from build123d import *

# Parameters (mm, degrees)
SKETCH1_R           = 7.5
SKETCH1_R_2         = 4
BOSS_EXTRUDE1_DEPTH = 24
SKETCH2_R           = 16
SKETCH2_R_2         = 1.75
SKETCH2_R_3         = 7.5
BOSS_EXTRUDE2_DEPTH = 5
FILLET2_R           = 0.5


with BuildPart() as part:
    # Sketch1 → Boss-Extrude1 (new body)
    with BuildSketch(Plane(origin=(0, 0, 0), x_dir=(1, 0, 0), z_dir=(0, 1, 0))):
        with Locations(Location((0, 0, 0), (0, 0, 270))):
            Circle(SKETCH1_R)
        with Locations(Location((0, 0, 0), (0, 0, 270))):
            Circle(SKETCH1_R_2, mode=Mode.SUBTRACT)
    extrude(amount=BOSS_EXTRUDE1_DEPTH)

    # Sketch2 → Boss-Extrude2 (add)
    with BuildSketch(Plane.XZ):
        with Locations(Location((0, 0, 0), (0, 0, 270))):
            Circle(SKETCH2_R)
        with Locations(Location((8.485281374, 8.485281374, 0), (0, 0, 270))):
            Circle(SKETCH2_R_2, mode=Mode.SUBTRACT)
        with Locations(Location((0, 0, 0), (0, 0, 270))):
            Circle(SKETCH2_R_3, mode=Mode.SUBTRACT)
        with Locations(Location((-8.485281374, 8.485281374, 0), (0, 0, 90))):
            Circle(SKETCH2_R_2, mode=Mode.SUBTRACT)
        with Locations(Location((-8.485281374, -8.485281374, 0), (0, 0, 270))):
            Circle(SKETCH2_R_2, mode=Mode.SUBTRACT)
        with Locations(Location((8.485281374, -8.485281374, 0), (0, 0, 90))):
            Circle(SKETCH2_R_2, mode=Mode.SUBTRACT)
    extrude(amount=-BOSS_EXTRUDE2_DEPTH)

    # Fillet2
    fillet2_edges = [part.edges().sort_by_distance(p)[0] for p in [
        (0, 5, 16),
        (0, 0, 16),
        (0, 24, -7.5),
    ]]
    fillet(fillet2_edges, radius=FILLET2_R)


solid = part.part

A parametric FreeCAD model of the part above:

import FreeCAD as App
import Part
import Sketcher
from FreeCAD import Vector
Q = App.Units.Quantity


def edges_at(feature, points):
    """Names of the edges that pass closest to the given points."""
    edges = feature.Shape.Edges
    near = lambda p: min(range(len(edges)), key=lambda i: edges[i].distToShape(Part.Vertex(*p))[0])
    return sorted({f"Edge{near(p) + 1}" for p in points})

doc = App.newDocument("Part")
params = doc.addObject("Spreadsheet::Sheet", "Params")
for row, (alias, value) in enumerate([
    ("sketch1_diameter", "15 mm"),
    ("sketch1_diameter2", "8 mm"),
    ("pad1_length", "24 mm"),
    ("sketch2_diameter", "32 mm"),
    ("sketch2_diameter2", "15 mm"),
    ("sketch2_diameter3", "3.5 mm"),
    ("pad2_length", "5 mm"),
    ("fillet_radius", "0.5 mm"),
], start=1):
    params.set(f"A{row}", alias)
    params.set(f"B{row}", "=" + value)
    params.setAlias(f"B{row}", alias)

body = doc.addObject("PartDesign::Body", "Body")

# Sketch on XZ plane
sketch1 = doc.addObject("Sketcher::SketchObject", "Sketch")
body.addObject(sketch1)
sketch1.AttachmentSupport = (doc.XZ_Plane, [""])
sketch1.MapMode = "FlatFace"
sketch1.addGeometry([
    Part.Circle(Vector(0, 0, 0), Vector(0, 0, 1), 7.5),
    Part.Circle(Vector(0, 0, 0), Vector(0, 0, 1), 4),
], False)
sketch1.addConstraint([
    Sketcher.Constraint("Coincident", 0, 3, -1, 1),
    Sketcher.Constraint("Coincident", 1, 3, -1, 1),
    Sketcher.Constraint("Diameter", 0, Q("15 mm")),
    Sketcher.Constraint("Diameter", 1, Q("8 mm")),
])
sketch1.setExpression("Constraints[2]", "Params.sketch1_diameter")
sketch1.setExpression("Constraints[3]", "Params.sketch1_diameter2")
pad1 = doc.addObject("PartDesign::Pad", "Pad")
body.addObject(pad1)
pad1.Profile = sketch1
pad1.setExpression("Length", "Params.pad1_length")
pad1.Reversed = True

# Sketch on XZ plane
sketch2 = doc.addObject("Sketcher::SketchObject", "Sketch001")
body.addObject(sketch2)
sketch2.AttachmentSupport = (doc.XZ_Plane, [""])
sketch2.MapMode = "FlatFace"
sketch2.addGeometry([
    Part.Circle(Vector(0, 0, 0), Vector(0, 0, 1), 16),  # 0
    Part.Circle(Vector(-8.5, 8.5, 0), Vector(0, 0, 1), 1.8),  # 1
    Part.Circle(Vector(-8.5, -8.5, 0), Vector(0, 0, 1), 1.8),  # 2
    Part.Circle(Vector(0, 0, 0), Vector(0, 0, 1), 7.5),  # 3
    Part.Circle(Vector(8.5, 8.5, 0), Vector(0, 0, 1), 1.8),  # 4
    Part.Circle(Vector(8.5, -8.5, 0), Vector(0, 0, 1), 1.8),  # 5
], False)
sketch2.addConstraint([
    Sketcher.Constraint("Coincident", 0, 3, -1, 1),
    Sketcher.Constraint("Coincident", 3, 3, -1, 1),
    Sketcher.Constraint("Equal", 1, 2),
    Sketcher.Constraint("Equal", 2, 4),
    Sketcher.Constraint("Equal", 4, 5),
    Sketcher.Constraint("Symmetric", 2, 3, 4, 3, -1, 1),
    Sketcher.Constraint("Symmetric", 1, 3, 5, 3, -1, 1),
    Sketcher.Constraint("Symmetric", 1, 3, 4, 3, -2),
    Sketcher.Constraint("Diameter", 0, Q("32 mm")),
    Sketcher.Constraint("Diameter", 3, Q("15 mm")),
    Sketcher.Constraint("Diameter", 1, Q("3.5 mm")),
    Sketcher.Constraint("DistanceX", 1, 3, -1, 1, Q("8.485281 mm")),
    Sketcher.Constraint("DistanceY", -1, 1, 1, 3, Q("8.485281 mm")),
])
sketch2.setExpression("Constraints[8]", "Params.sketch2_diameter")
sketch2.setExpression("Constraints[9]", "Params.sketch2_diameter2")
sketch2.setExpression("Constraints[10]", "Params.sketch2_diameter3")
pad2 = doc.addObject("PartDesign::Pad", "Pad001")
body.addObject(pad2)
pad2.Profile = sketch2
pad2.setExpression("Length", "Params.pad2_length")
pad2.Reversed = True
doc.recompute()

fillet = doc.addObject("PartDesign::Fillet", "Fillet")
body.addObject(fillet)
fillet.Base = (pad2, edges_at(pad2, [(0, 5, 16), (0, 0, 16), (0, 24, -7.5)]))
fillet.setExpression("Radius", "Params.fillet_radius")

doc.recompute()
